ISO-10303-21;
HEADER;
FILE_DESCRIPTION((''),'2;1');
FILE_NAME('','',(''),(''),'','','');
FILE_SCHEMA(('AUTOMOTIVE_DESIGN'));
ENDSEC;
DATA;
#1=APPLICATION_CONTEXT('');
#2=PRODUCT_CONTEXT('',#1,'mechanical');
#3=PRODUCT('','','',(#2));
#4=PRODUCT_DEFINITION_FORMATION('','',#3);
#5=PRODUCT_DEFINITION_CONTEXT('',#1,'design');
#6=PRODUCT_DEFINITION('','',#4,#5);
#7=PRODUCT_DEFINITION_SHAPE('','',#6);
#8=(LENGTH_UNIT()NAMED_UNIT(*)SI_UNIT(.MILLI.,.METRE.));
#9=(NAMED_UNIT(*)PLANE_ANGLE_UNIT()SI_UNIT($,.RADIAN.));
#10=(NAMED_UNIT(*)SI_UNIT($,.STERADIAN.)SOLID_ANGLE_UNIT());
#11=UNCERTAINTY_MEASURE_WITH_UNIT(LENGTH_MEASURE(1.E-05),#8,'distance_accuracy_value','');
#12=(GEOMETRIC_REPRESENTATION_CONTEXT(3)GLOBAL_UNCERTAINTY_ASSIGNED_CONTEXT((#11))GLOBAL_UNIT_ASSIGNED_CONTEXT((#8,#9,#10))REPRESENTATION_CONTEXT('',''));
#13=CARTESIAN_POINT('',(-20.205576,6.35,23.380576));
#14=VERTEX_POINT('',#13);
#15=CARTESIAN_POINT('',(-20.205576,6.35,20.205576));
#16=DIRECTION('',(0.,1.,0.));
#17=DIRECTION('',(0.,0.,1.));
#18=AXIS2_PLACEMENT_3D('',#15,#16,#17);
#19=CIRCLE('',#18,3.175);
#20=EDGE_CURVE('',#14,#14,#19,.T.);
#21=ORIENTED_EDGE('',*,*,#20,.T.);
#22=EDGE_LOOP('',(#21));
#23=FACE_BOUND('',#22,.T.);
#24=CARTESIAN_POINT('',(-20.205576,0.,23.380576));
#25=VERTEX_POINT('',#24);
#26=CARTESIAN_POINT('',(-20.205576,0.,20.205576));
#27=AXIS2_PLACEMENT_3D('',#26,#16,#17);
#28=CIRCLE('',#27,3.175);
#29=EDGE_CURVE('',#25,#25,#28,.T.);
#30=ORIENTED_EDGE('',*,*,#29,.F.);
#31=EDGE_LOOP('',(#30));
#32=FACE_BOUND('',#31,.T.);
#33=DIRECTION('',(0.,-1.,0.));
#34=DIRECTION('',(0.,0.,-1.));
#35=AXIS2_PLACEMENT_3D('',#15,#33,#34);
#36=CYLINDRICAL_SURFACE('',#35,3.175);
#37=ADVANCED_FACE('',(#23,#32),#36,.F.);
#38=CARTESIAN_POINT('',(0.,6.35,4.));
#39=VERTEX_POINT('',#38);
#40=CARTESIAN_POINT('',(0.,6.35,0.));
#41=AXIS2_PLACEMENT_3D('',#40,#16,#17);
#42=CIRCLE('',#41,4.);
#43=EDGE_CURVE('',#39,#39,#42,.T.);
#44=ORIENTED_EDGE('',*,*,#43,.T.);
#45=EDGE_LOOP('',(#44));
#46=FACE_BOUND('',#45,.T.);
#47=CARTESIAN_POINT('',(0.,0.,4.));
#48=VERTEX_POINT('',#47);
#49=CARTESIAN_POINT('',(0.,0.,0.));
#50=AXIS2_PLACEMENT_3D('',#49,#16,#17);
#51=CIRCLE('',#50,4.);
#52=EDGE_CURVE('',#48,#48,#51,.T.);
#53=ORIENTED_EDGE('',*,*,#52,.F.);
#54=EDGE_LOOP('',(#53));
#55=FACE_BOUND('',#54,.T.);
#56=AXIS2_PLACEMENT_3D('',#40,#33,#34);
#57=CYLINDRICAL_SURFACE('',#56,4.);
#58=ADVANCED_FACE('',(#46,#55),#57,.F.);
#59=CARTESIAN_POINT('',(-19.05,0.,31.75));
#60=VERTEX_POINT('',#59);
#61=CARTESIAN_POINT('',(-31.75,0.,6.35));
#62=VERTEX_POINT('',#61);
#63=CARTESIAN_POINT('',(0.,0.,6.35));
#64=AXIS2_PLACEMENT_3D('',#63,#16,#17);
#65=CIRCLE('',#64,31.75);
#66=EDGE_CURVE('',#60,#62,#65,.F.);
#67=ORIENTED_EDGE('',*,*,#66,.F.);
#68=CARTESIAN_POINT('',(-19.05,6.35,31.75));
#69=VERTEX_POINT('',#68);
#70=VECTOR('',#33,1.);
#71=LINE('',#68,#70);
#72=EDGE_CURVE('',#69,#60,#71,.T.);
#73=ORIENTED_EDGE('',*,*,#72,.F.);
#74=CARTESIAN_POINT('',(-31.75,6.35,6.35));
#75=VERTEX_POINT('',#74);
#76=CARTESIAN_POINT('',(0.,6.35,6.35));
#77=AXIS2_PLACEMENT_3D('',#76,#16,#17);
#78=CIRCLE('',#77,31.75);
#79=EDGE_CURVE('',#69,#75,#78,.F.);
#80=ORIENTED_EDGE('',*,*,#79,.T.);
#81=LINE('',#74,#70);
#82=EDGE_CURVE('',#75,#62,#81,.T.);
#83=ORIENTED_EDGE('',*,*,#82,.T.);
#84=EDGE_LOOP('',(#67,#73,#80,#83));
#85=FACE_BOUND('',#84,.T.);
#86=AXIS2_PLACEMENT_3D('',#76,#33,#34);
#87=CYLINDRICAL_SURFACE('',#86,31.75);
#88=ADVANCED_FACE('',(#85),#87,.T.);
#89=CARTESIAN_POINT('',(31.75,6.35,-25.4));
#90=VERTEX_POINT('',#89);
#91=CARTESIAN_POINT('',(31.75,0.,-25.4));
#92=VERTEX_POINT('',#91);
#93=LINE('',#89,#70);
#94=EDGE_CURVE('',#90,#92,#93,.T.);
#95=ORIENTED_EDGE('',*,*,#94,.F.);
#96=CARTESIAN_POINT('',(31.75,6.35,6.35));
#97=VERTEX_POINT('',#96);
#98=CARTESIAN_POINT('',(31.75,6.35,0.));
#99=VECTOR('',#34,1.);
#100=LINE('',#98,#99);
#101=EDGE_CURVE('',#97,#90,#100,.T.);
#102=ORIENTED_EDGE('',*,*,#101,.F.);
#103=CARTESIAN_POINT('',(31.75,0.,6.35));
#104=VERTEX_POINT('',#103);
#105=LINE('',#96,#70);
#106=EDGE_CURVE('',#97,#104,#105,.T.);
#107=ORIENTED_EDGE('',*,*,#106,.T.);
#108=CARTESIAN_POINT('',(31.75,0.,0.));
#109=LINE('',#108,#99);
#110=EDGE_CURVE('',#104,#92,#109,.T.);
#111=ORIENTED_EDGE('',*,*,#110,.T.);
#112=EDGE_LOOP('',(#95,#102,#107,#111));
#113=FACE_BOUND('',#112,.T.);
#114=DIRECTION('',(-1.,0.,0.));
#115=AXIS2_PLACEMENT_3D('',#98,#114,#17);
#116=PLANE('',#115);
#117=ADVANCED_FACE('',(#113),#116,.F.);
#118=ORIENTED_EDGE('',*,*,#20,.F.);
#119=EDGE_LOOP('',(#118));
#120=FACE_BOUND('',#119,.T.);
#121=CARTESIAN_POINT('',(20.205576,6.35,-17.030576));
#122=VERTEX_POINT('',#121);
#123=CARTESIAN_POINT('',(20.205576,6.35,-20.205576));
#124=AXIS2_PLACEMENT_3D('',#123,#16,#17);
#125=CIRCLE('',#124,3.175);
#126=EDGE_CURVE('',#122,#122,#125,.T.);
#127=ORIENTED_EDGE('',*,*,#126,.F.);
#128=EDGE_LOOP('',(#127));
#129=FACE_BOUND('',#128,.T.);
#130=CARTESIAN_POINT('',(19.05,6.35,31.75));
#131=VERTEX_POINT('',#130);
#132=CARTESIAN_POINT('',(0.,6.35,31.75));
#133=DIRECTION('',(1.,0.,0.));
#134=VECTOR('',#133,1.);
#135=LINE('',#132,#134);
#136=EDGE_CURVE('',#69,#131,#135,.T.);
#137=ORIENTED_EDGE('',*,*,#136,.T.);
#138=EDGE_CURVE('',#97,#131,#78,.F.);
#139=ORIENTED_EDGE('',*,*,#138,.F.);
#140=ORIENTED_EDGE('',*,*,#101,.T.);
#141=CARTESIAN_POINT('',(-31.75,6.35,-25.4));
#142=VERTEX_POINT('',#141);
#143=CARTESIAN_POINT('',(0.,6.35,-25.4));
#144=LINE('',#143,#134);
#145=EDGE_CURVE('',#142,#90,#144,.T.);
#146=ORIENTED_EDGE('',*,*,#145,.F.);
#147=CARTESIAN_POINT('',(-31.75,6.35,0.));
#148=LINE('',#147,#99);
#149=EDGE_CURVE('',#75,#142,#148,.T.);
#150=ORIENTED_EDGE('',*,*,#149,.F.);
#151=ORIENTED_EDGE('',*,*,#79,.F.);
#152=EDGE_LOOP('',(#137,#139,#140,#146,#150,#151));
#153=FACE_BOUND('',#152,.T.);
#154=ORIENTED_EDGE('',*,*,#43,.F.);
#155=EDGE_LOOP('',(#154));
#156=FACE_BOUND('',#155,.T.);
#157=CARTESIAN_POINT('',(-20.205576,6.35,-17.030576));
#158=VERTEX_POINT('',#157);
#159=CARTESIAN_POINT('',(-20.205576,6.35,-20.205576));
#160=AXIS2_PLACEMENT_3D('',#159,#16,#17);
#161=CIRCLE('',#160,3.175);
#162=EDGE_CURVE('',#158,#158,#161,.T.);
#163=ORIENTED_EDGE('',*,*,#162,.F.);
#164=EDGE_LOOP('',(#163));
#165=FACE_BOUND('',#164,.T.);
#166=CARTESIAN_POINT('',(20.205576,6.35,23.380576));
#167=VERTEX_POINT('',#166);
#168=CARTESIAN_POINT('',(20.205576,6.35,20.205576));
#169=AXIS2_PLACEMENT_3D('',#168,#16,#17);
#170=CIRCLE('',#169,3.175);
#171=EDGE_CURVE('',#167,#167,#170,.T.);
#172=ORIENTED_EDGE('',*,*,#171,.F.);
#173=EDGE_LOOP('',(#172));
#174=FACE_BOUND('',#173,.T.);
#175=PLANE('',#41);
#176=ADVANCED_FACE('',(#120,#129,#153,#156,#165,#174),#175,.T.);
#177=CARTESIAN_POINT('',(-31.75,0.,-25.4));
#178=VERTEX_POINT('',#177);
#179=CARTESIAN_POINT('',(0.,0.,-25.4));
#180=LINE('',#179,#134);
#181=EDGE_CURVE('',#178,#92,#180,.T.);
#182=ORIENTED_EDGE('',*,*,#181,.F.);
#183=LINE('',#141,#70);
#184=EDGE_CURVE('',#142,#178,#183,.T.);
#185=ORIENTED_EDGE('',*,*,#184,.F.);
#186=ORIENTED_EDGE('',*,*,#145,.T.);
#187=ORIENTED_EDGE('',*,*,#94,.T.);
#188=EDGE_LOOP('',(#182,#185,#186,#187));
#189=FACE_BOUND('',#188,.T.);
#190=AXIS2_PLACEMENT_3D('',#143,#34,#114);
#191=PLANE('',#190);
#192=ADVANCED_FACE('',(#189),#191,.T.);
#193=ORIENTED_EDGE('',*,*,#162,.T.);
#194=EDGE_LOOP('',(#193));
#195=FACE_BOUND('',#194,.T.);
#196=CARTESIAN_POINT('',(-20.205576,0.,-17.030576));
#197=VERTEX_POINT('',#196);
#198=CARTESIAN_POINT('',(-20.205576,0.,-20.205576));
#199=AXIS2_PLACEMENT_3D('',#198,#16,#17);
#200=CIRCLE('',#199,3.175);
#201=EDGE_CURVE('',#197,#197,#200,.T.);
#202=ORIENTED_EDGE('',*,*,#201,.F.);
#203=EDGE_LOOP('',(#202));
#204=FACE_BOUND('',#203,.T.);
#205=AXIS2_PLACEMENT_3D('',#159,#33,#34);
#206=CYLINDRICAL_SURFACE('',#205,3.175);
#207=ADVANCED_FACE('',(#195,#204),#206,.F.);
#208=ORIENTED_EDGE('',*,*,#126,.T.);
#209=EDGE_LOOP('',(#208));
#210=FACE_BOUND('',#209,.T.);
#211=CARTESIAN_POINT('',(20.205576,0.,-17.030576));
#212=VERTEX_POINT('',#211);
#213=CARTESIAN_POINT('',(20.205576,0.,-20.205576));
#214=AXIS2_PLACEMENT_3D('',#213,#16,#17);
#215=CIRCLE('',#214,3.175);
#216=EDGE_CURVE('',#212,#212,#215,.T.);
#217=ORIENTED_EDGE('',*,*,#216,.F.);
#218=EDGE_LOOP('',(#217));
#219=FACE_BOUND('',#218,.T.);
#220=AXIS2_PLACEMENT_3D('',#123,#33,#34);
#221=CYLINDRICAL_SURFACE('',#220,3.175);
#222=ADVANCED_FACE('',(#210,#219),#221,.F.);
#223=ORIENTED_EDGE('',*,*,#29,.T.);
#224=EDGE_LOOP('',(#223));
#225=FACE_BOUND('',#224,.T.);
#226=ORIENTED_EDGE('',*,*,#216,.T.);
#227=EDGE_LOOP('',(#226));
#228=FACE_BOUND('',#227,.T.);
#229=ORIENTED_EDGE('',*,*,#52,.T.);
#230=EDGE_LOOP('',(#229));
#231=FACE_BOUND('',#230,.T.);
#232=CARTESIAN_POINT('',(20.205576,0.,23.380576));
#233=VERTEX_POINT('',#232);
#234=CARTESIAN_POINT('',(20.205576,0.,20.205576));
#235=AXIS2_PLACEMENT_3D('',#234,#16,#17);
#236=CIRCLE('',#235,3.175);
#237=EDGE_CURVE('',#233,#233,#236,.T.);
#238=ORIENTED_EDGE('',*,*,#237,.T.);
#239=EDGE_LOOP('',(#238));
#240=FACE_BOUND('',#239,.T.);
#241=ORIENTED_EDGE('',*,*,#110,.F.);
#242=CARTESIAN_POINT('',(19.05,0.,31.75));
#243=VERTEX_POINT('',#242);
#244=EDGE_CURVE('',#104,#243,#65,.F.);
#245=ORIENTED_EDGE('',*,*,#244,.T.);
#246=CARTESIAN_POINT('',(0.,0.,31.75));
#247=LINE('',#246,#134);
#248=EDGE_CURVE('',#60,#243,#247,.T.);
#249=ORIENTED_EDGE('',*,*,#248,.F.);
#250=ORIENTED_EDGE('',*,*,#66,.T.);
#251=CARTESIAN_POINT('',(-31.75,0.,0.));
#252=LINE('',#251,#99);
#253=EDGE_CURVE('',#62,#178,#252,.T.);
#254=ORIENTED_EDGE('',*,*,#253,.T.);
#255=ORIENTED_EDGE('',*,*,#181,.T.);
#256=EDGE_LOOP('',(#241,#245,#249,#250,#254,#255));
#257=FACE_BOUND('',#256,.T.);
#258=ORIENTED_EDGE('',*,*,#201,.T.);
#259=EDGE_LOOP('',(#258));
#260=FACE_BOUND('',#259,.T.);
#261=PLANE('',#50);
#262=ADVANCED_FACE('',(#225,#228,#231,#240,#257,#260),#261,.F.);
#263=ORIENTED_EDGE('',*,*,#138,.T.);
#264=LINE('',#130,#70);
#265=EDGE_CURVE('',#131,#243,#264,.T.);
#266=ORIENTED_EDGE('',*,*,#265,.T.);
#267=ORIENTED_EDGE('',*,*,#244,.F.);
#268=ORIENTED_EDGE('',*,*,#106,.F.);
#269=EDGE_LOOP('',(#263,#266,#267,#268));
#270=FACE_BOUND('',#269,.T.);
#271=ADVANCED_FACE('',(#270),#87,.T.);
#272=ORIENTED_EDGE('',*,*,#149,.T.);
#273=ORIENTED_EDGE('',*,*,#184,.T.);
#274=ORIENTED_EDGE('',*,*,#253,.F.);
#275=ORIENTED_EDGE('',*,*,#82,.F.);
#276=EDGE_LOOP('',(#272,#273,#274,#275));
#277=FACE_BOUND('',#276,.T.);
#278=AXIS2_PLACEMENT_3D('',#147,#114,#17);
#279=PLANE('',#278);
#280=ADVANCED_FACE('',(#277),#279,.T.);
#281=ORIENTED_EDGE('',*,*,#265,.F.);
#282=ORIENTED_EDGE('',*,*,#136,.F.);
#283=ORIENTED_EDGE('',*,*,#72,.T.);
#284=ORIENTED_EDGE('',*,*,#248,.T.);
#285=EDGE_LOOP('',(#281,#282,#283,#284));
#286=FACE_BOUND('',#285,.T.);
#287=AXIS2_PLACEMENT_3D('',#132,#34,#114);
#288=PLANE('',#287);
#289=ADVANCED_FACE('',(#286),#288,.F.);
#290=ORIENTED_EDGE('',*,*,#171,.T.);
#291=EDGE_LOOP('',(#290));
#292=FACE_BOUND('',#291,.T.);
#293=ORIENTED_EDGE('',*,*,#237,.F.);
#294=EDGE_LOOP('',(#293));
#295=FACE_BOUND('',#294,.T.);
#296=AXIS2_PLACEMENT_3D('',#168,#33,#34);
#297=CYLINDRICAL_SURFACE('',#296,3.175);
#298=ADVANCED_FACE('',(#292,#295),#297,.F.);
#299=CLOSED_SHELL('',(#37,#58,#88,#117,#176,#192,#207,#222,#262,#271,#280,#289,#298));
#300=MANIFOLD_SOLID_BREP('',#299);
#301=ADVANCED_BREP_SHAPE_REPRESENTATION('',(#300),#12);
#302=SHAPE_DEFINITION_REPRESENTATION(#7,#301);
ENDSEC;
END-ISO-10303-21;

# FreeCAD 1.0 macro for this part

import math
import FreeCAD as App
import Part
import Sketcher

V = App.Vector
Q = App.Units.Quantity

doc = App.newDocument("Part")
params = doc.addObject("Spreadsheet::Sheet", "Params")
for row, (alias, value) in enumerate([
    ("sketch1_diameter", "0.25 in"),
    ("sketch1_radius", "1.25 in"),
    ("sketch1_width", "1.5 in"),
    ("sketch1_height", "1.25 in"),
    ("pad1_length", "0.25 in"),
], start=1):
    params.set(f"A{row}", alias)
    params.set(f"B{row}", "=" + value)
    params.setAlias(f"B{row}", alias)

body = doc.addObject("PartDesign::Body", "Body")

# Sketch on XZ plane
sketch1 = doc.addObject("Sketcher::SketchObject", "Sketch")
body.addObject(sketch1)
sketch1.AttachmentSupport = (doc.XZ_Plane, [""])
sketch1.MapMode = "FlatFace"
sketch1.addGeometry(Part.LineSegment(V(-31.75, -25.4, 0), V(-31.75, 6.35, 0)), False)
sketch1.addGeometry(Part.ArcOfCircle(Part.Circle(V(0, 6.35, 0), V(0, 0, 1), 31.75), math.radians(126.869898), math.radians(180)), False)
sketch1.addGeometry(Part.LineSegment(V(-19.05, 31.75, 0), V(19.05, 31.75, 0)), False)
sketch1.addGeometry(Part.ArcOfCircle(Part.Circle(V(0, 6.35, 0), V(0, 0, 1), 31.75), math.radians(0), math.radians(53.130102)), False)
sketch1.addGeometry(Part.LineSegment(V(31.75, 6.35, 0), V(31.75, -25.4, 0)), False)
sketch1.addGeometry(Part.LineSegment(V(31.75, -25.4, 0), V(-31.75, -25.4, 0)), False)
sketch1.addGeometry(Part.Circle(V(-20.205576, 20.205576, 0), V(0, 0, 1), 3.175), False)
sketch1.addGeometry(Part.Circle(V(20.205576, 20.205576, 0), V(0, 0, 1), 3.175), False)
sketch1.addGeometry(Part.Circle(V(-20.205576, -20.205576, 0), V(0, 0, 1), 3.175), False)
sketch1.addGeometry(Part.Circle(V(0, 0, 0), V(0, 0, 1), 4), False)
sketch1.addGeometry(Part.Circle(V(20.205576, -20.205576, 0), V(0, 0, 1), 3.175), False)
sketch1.addConstraint(Sketcher.Constraint("Tangent", 0, 2, 1, 2))
sketch1.addConstraint(Sketcher.Constraint("Coincident", 1, 1, 2, 1))
sketch1.addConstraint(Sketcher.Constraint("Coincident", 2, 2, 3, 2))
sketch1.addConstraint(Sketcher.Constraint("Tangent", 3, 1, 4, 1))
sketch1.addConstraint(Sketcher.Constraint("Coincident", 4, 2, 5, 1))
sketch1.addConstraint(Sketcher.Constraint("Coincident", 5, 2, 0, 1))
sketch1.addConstraint(Sketcher.Constraint("Vertical", 0))
sketch1.addConstraint(Sketcher.Constraint("Horizontal", 2))
sketch1.addConstraint(Sketcher.Constraint("Vertical", 4))
sketch1.addConstraint(Sketcher.Constraint("Horizontal", 5))
sketch1.addConstraint(Sketcher.Constraint("Coincident", 9, 3, -1, 1))
sketch1.addConstraint(Sketcher.Constraint("Coincident", 3, 3, 1, 3))
sketch1.addConstraint(Sketcher.Constraint("Equal", 1, 3))
sketch1.addConstraint(Sketcher.Constraint("Equal", 6, 7))
sketch1.addConstraint(Sketcher.Constraint("Equal", 7, 8))
sketch1.addConstraint(Sketcher.Constraint("Equal", 8, 10))
sketch1.addConstraint(Sketcher.Constraint("Symmetric", 7, 3, 8, 3, -1, 1))
sketch1.addConstraint(Sketcher.Constraint("Symmetric", 6, 3, 10, 3, -1, 1))
sketch1.addConstraint(Sketcher.Constraint("Symmetric", 6, 3, 7, 3, -2))
sketch1.addConstraint(Sketcher.Constraint("PointOnObject", 1, 3, -2))
sketch1.addConstraint(Sketcher.Constraint("Diameter", 6, Q("0.25 in")))
sketch1.addConstraint(Sketcher.Constraint("Radius", 1, Q("1.25 in")))
sketch1.addConstraint(Sketcher.Constraint("DistanceX", 2, 1, 2, 2, Q("1.5 in")))
sketch1.addConstraint(Sketcher.Constraint("DistanceY", 4, 2, -1, 1, Q("1 in")))
sketch1.addConstraint(Sketcher.Constraint("DistanceY", 0, 1, 0, 2, Q("1.25 in")))
sketch1.addConstraint(Sketcher.Constraint("Diameter", 9, 8.0))
sketch1.addConstraint(Sketcher.Constraint("DistanceX", 6, 3, -1, 1, 20.205576))
sketch1.addConstraint(Sketcher.Constraint("DistanceY", -1, 1, 6, 3, 20.205576))
sketch1.setExpression("Constraints[20]", "Params.sketch1_diameter")
sketch1.setExpression("Constraints[21]", "Params.sketch1_radius")
sketch1.setExpression("Constraints[22]", "Params.sketch1_width")
sketch1.setExpression("Constraints[24]", "Params.sketch1_height")
pad1 = doc.addObject("PartDesign::Pad", "Pad")
body.addObject(pad1)
pad1.Profile = sketch1
pad1.setExpression("Length", "Params.pad1_length")
pad1.Reversed = True

doc.recompute()
